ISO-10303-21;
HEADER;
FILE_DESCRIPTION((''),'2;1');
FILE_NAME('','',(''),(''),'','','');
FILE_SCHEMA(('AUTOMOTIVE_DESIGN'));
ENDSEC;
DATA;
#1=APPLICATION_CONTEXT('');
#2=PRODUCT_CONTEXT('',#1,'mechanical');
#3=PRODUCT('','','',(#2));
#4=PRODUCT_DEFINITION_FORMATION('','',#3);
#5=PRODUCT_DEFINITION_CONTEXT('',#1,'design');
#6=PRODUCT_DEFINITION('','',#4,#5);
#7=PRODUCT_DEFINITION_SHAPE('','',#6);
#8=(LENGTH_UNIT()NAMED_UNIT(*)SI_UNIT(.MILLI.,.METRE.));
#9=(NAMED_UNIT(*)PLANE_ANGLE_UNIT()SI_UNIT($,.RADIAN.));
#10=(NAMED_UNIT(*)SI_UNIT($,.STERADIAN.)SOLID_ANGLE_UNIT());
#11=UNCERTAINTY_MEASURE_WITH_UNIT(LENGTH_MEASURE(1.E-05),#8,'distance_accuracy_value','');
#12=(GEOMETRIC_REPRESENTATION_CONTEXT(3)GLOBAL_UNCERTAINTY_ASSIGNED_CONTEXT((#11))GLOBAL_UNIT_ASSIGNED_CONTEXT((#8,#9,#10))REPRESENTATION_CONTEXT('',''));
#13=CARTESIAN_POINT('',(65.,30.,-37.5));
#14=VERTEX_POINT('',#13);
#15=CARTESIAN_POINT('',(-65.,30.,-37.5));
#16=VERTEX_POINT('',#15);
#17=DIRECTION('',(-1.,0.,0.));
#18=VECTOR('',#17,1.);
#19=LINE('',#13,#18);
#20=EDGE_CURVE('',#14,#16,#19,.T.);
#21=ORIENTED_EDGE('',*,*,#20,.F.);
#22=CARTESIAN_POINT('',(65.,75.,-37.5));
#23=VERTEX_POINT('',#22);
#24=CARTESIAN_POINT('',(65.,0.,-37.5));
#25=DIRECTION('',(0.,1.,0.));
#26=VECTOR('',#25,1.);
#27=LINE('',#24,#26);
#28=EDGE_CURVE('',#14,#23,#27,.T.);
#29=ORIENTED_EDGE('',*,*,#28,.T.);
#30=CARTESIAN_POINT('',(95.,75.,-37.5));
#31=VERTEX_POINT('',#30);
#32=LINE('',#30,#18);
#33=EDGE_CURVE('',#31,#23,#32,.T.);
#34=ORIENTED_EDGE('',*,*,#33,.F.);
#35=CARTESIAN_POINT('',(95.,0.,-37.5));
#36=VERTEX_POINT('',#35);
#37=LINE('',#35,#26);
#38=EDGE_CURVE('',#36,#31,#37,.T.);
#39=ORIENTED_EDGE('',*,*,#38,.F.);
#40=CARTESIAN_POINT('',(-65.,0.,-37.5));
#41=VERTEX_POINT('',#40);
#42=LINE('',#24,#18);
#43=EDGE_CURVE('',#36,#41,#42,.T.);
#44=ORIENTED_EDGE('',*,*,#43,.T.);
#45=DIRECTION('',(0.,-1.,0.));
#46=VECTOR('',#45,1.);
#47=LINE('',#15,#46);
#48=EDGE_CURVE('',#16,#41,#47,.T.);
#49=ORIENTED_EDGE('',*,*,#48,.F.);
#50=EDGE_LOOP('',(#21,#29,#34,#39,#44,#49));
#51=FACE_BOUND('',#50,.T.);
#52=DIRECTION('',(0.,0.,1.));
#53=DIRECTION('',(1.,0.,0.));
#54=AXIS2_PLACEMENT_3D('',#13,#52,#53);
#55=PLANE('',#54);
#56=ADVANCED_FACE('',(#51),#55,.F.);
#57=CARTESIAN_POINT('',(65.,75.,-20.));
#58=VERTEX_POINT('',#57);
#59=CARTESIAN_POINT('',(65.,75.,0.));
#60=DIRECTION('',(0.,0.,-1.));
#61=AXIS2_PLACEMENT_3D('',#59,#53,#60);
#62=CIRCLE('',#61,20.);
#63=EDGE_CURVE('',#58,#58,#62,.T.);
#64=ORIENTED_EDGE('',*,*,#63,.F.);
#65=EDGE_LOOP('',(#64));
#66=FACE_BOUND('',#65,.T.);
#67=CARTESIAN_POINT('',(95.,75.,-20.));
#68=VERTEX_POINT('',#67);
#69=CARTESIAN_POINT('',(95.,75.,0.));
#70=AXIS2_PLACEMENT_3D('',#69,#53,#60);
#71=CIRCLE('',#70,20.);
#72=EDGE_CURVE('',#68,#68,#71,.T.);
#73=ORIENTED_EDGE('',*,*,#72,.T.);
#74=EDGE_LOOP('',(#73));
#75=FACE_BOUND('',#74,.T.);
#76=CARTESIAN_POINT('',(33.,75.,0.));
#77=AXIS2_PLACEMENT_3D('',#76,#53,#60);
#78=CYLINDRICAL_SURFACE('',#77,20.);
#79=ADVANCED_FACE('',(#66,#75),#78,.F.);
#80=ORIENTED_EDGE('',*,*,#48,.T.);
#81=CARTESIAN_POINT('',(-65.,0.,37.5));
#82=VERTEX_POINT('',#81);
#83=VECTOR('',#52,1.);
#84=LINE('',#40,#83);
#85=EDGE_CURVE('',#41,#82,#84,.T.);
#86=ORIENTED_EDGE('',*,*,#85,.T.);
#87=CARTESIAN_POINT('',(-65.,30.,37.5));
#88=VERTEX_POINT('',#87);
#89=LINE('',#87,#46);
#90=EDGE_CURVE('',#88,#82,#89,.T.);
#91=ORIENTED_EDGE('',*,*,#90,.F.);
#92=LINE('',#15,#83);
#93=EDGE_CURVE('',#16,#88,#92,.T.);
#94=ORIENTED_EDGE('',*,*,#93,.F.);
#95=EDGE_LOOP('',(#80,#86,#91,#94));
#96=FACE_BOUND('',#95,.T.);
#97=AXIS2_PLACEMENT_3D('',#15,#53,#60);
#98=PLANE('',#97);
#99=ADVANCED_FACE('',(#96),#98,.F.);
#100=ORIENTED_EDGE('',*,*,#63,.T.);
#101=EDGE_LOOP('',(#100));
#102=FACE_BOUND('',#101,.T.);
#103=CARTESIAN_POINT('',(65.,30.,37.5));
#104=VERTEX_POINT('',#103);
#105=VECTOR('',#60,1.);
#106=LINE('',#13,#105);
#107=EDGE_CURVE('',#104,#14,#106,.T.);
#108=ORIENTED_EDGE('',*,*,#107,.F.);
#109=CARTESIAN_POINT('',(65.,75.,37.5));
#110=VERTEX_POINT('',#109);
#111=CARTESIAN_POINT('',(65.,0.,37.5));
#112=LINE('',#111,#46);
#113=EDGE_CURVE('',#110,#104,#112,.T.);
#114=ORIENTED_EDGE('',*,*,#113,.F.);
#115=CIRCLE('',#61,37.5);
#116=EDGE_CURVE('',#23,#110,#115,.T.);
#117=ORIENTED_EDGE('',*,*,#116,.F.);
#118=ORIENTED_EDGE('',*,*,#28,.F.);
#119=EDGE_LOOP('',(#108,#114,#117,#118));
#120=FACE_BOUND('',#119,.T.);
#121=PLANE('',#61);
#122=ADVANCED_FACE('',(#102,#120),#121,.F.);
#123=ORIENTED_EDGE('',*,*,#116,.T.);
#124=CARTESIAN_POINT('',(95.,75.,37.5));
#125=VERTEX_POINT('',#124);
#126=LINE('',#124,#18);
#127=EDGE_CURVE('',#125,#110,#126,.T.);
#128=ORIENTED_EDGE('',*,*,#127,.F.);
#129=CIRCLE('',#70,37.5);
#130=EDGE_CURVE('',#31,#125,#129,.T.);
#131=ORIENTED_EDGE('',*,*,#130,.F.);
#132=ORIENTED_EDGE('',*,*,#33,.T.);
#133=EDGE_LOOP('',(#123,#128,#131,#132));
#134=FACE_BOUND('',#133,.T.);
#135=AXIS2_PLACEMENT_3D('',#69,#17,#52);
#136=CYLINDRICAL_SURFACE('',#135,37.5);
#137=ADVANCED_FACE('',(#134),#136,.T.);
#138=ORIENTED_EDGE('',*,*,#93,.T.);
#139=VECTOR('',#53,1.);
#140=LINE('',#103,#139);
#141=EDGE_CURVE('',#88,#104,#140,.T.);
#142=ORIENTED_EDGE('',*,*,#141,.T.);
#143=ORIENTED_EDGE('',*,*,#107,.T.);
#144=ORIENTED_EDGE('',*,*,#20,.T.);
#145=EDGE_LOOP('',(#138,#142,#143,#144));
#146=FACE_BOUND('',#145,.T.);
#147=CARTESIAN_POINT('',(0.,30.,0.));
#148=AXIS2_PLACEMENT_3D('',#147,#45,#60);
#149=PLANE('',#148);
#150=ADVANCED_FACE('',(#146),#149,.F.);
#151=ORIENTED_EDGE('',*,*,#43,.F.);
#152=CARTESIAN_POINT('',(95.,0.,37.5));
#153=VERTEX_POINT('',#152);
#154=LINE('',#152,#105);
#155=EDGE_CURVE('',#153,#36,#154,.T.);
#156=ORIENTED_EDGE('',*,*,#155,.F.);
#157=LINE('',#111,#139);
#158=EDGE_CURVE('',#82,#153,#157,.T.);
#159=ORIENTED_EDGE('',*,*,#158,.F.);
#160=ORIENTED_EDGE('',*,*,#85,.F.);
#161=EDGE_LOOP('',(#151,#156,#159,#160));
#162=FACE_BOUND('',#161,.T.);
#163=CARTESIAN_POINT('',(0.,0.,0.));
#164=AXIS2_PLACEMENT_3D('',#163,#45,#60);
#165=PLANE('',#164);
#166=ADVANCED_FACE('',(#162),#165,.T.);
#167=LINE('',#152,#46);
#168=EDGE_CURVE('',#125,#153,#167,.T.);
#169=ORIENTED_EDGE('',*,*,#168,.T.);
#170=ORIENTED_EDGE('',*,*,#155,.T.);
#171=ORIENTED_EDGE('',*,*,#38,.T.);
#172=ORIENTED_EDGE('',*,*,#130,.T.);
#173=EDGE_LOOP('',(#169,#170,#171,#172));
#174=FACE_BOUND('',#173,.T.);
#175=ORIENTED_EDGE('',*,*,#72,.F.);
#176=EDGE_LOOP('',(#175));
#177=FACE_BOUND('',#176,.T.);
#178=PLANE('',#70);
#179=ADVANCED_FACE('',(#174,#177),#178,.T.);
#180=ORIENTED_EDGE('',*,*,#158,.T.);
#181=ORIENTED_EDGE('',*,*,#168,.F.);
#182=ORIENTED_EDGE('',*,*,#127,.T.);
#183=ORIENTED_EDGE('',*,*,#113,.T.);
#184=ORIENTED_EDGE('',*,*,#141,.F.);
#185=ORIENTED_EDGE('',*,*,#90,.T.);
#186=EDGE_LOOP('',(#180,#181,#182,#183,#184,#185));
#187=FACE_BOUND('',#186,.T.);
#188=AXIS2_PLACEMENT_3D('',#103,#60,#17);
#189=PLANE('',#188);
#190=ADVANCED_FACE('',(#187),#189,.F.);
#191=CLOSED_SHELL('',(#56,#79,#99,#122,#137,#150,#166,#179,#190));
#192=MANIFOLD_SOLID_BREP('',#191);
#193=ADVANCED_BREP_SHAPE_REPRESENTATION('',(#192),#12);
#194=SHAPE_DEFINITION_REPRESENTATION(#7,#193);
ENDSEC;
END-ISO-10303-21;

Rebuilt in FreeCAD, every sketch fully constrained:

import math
import FreeCAD as App
import Part
import Sketcher


def add_polygon(sketch, points):
    """Adds a closed chain of lines whose ends are joined by coincident constraints."""
    first, n = sketch.GeometryCount, len(points)
    for a, b in zip(points, points[1:] + points[:1]):
        sketch.addGeometry(Part.LineSegment(App.Vector(*a, 0), App.Vector(*b, 0)), False)
    for i in range(n):
        sketch.addConstraint(Sketcher.Constraint("Coincident", first + i, 2, first + (i + 1) % n, 1))

doc = App.newDocument("Part")
body = doc.addObject("PartDesign::Body", "Body")

sketch1 = body.newObject("Sketcher::SketchObject", "Sketch")
sketch1.AttachmentSupport = (doc.getObject("XZ_Plane"), [""])
sketch1.MapMode = "FlatFace"
add_polygon(sketch1, [(-65, -38), (-65, 38), (65, 38), (65, -38)])
sketch1.addConstraint(Sketcher.Constraint("Vertical", 0))
sketch1.addConstraint(Sketcher.Constraint("Horizontal", 1))
sketch1.addConstraint(Sketcher.Constraint("Vertical", 2))
sketch1.addConstraint(Sketcher.Constraint("Horizontal", 3))
sketch1.addConstraint(Sketcher.Constraint("Symmetric", 0, 2, 2, 2, -1, 1))
sketch1.addConstraint(Sketcher.Constraint("DistanceX", 1, 1, 1, 2, 130.0))
sketch1.addConstraint(Sketcher.Constraint("DistanceY", 0, 1, 0, 2, 75.0))
pad1 = body.newObject("PartDesign::Pad", "Pad")
pad1.Profile = sketch1
pad1.Length = 30
pad1.Reversed = True

sketch2 = body.newObject("Sketcher::SketchObject", "Sketch001")
sketch2.AttachmentSupport = (doc.getObject("YZ_Plane"), [""])
sketch2.MapMode = "FlatFace"
sketch2.AttachmentOffset = App.Placement(App.Vector(0, 0, 65), App.Rotation())
sketch2.addGeometry(Part.LineSegment(App.Vector(0, 38, 0), App.Vector(0, -38, 0)), False)
sketch2.addGeometry(Part.LineSegment(App.Vector(0, -38, 0), App.Vector(75, -38, 0)), False)
sketch2.addGeometry(Part.ArcOfCircle(Part.Circle(App.Vector(75, 0, 0), App.Vector(0, 0, 1), 38), math.radians(-90), math.radians(90)), False)
sketch2.addGeometry(Part.LineSegment(App.Vector(75, 38, 0), App.Vector(0, 38, 0)), False)
sketch2.addConstraint(Sketcher.Constraint("Coincident", 0, 2, 1, 1))
sketch2.addConstraint(Sketcher.Constraint("Tangent", 1, 2, 2, 1))
sketch2.addConstraint(Sketcher.Constraint("Tangent", 2, 2, 3, 1))
sketch2.addConstraint(Sketcher.Constraint("Coincident", 3, 2, 0, 1))
sketch2.addConstraint(Sketcher.Constraint("Vertical", 0))
sketch2.addConstraint(Sketcher.Constraint("Horizontal", 1))
sketch2.addConstraint(Sketcher.Constraint("Horizontal", 3))
sketch2.addConstraint(Sketcher.Constraint("Symmetric", 0, 2, 3, 2, -1, 1))
sketch2.addConstraint(Sketcher.Constraint("Equal", 3, 0))
sketch2.addConstraint(Sketcher.Constraint("Radius", 2, 37.5))
pad2 = body.newObject("PartDesign::Pad", "Pad001")
pad2.Profile = sketch2
pad2.Length = 30

sketch3 = body.newObject("Sketcher::SketchObject", "Sketch002")
sketch3.AttachmentSupport = (doc.getObject("YZ_Plane"), [""])
sketch3.MapMode = "FlatFace"
sketch3.AttachmentOffset = App.Placement(App.Vector(0, 0, 95), App.Rotation())
sketch3.addGeometry(Part.Circle(App.Vector(75, 0, 0), App.Vector(0, 0, 1), 20), False)
sketch3.addConstraint(Sketcher.Constraint("PointOnObject", 0, 3, -1))
sketch3.addConstraint(Sketcher.Constraint("Diameter", 0, 40.0))
sketch3.addConstraint(Sketcher.Constraint("DistanceX", -1, 1, 0, 3, 75.0))
pocket1 = body.newObject("PartDesign::Pocket", "Pocket")
pocket1.Profile = sketch3
pocket1.Length = 62

doc.recompute()
